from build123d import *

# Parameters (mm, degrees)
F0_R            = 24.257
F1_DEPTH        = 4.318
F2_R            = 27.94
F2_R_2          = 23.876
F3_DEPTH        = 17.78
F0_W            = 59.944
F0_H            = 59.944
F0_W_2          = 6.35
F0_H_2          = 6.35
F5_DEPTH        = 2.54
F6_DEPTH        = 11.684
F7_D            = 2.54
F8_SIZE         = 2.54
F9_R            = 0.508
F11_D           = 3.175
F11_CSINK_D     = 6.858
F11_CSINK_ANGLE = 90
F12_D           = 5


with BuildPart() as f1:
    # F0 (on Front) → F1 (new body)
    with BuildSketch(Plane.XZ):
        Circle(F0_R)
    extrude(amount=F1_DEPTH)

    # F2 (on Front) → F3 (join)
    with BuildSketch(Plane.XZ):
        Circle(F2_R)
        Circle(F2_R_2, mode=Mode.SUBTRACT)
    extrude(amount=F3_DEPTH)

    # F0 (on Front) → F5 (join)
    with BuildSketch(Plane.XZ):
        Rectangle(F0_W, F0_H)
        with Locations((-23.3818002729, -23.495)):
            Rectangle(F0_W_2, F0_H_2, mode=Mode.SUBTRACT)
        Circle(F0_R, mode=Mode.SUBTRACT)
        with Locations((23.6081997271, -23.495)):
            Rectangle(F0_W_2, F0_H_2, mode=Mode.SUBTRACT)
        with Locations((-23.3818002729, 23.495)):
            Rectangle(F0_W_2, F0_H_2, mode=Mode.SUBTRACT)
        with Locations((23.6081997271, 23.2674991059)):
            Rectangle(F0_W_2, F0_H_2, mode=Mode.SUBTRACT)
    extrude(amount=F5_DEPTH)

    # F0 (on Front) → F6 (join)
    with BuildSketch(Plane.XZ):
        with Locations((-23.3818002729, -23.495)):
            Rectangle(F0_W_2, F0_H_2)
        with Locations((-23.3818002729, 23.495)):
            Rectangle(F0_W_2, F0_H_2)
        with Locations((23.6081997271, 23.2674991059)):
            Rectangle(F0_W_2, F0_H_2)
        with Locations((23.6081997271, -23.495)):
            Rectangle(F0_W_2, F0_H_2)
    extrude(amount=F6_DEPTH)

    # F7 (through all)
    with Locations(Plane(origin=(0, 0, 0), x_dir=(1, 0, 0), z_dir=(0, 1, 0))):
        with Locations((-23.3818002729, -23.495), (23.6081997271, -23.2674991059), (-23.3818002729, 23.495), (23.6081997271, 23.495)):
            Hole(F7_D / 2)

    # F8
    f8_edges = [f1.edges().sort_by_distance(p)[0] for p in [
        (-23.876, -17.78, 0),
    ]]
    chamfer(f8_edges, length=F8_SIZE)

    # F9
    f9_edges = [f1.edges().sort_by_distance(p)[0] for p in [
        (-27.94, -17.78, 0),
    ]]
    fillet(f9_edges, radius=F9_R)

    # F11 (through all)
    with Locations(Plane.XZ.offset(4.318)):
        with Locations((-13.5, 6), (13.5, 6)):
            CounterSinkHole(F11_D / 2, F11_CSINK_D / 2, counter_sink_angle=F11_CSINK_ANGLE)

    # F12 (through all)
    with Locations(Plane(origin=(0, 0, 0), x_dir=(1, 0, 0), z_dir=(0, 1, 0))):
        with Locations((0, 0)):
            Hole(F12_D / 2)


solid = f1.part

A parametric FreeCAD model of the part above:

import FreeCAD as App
import Part
import Sketcher
Q = App.Units.Quantity


def edges_at(feature, points):
    """Names of the edges that pass closest to the given points."""
    edges = feature.Shape.Edges
    near = lambda p: min(range(len(edges)), key=lambda i: edges[i].distToShape(Part.Vertex(*p))[0])
    return sorted({f"Edge{near(p) + 1}" for p in points})


def add_polygon(sketch, points):
    """Adds a closed chain of lines whose ends are joined by coincident constraints."""
    first, n = sketch.GeometryCount, len(points)
    for a, b in zip(points, points[1:] + points[:1]):
        sketch.addGeometry(Part.LineSegment(App.Vector(*a, 0), App.Vector(*b, 0)), False)
    for i in range(n):
        sketch.addConstraint(Sketcher.Constraint("Coincident", first + i, 2, first + (i + 1) % n, 1))

doc = App.newDocument("Part")
body = doc.addObject("PartDesign::Body", "Body")

# Sketch on XZ plane
sketch1 = doc.addObject("Sketcher::SketchObject", "Sketch")
body.addObject(sketch1)
sketch1.AttachmentSupport = (doc.XZ_Plane, [""])
sketch1.MapMode = "FlatFace"
sketch1.addGeometry(Part.Circle(App.Vector(0, 0, 0), App.Vector(0, 0, 1), 24), False)
sketch1.addConstraint([
    Sketcher.Constraint("Coincident", 0, 3, -1, 1),
    Sketcher.Constraint("Diameter", 0, Q("1.91 in")),
])
pad1 = doc.addObject("PartDesign::Pad", "Pad")
body.addObject(pad1)
pad1.Profile = sketch1
pad1.Length = Q("0.17 in")

# Sketch on XZ plane
sketch2 = doc.addObject("Sketcher::SketchObject", "Sketch001")
body.addObject(sketch2)
sketch2.AttachmentSupport = (doc.XZ_Plane, [""])
sketch2.MapMode = "FlatFace"
sketch2.addGeometry([
    Part.Circle(App.Vector(0, 0, 0), App.Vector(0, 0, 1), 28),
    Part.Circle(App.Vector(0, 0, 0), App.Vector(0, 0, 1), 24),
], False)
sketch2.addConstraint([
    Sketcher.Constraint("Coincident", 0, 3, -1, 1),
    Sketcher.Constraint("Coincident", 1, 3, -1, 1),
    Sketcher.Constraint("Diameter", 0, Q("2.2 in")),
    Sketcher.Constraint("Diameter", 1, Q("1.88 in")),
])
pad2 = doc.addObject("PartDesign::Pad", "Pad001")
body.addObject(pad2)
pad2.Profile = sketch2
pad2.Length = Q("0.7 in")

# Sketch on XZ plane
sketch3 = doc.addObject("Sketcher::SketchObject", "Sketch002")
body.addObject(sketch3)
sketch3.AttachmentSupport = (doc.XZ_Plane, [""])
sketch3.MapMode = "FlatFace"
add_polygon(sketch3, [(-30, 30), (-30, -30), (30, -30), (30, 30)])  # lines 0-3
add_polygon(sketch3, [(-20, -27), (-27, -27), (-27, -20), (-20, -20)])  # lines 4-7
sketch3.addGeometry(Part.Circle(App.Vector(0, 0, 0), App.Vector(0, 0, 1), 24), False)  # 8
add_polygon(sketch3, [(27, -27), (20, -27), (20, -20), (27, -20)])  # lines 9-12
add_polygon(sketch3, [(-20, 20), (-27, 20), (-27, 27), (-20, 27)])  # lines 13-16
add_polygon(sketch3, [(27, 20), (20, 20), (20, 26), (27, 26)])  # lines 17-20
sketch3.addConstraint([
    Sketcher.Constraint("Vertical", 0),
    Sketcher.Constraint("Horizontal", 1),
    Sketcher.Constraint("Vertical", 2),
    Sketcher.Constraint("Horizontal", 3),
    Sketcher.Constraint("Horizontal", 4),
    Sketcher.Constraint("Vertical", 5),
    Sketcher.Constraint("Horizontal", 6),
    Sketcher.Constraint("Vertical", 7),
    Sketcher.Constraint("Horizontal", 9),
    Sketcher.Constraint("Vertical", 10),
    Sketcher.Constraint("Horizontal", 11),
    Sketcher.Constraint("Vertical", 12),
    Sketcher.Constraint("Horizontal", 13),
    Sketcher.Constraint("Vertical", 14),
    Sketcher.Constraint("Horizontal", 15),
    Sketcher.Constraint("Vertical", 16),
    Sketcher.Constraint("Horizontal", 17),
    Sketcher.Constraint("Vertical", 18),
    Sketcher.Constraint("Horizontal", 19),
    Sketcher.Constraint("Vertical", 20),
    Sketcher.Constraint("Coincident", 8, 3, -1, 1),
    Sketcher.Constraint("Symmetric", 0, 2, 2, 2, -1, 1),
    Sketcher.Constraint("Symmetric", 5, 2, 13, 2, -1),
    Sketcher.Constraint("Symmetric", 7, 2, 15, 2, -1),
    Sketcher.Constraint("Horizontal", 7, 2, 9, 2),
    Sketcher.Constraint("Horizontal", 6, 2, 10, 2),
    Sketcher.Constraint("Vertical", 10, 2, 17, 2),
    Sketcher.Constraint("Vertical", 12, 2, 19, 2),
    Sketcher.Constraint("Equal", 6, 9),
    Sketcher.Constraint("Equal", 3, 0),
    Sketcher.Constraint("Equal", 19, 5),
    Sketcher.Constraint("Equal", 16, 18),
    Sketcher.Constraint("Diameter", 8, Q("1.91 in")),
    Sketcher.Constraint("DistanceX", 1, 1, 1, 2, Q("2.36 in")),
    Sketcher.Constraint("DistanceX", 4, 2, 4, 1, Q("0.25 in")),
    Sketcher.Constraint("DistanceY", 5, 2, -1, 1, Q("0.8 in")),
    Sketcher.Constraint("DistanceX", 7, 2, 9, 2, Q("1.6 in")),
    Sketcher.Constraint("DistanceX", 4, 2, -1, 1, Q("26.5568 mm")),
    Sketcher.Constraint("DistanceY", -1, 1, 17, 2, Q("20.092499 mm")),
])
pad3 = doc.addObject("PartDesign::Pad", "Pad002")
body.addObject(pad3)
pad3.Profile = sketch3
pad3.Length = Q("0.1 in")

# Sketch on XZ plane
sketch4 = doc.addObject("Sketcher::SketchObject", "Sketch003")
body.addObject(sketch4)
sketch4.AttachmentSupport = (doc.XZ_Plane, [""])
sketch4.MapMode = "FlatFace"
add_polygon(sketch4, [(-27, -20), (-27, -27), (-20, -27), (-20, -20)])  # lines 0-3
add_polygon(sketch4, [(-27, 27), (-27, 20), (-20, 20), (-20, 27)])  # lines 4-7
add_polygon(sketch4, [(20, 26), (20, 20), (27, 20), (27, 26)])  # lines 8-11
add_polygon(sketch4, [(20, -20), (20, -27), (27, -27), (27, -20)])  # lines 12-15
sketch4.addConstraint([
    Sketcher.Constraint("Vertical", 0),
    Sketcher.Constraint("Horizontal", 1),
    Sketcher.Constraint("Vertical", 2),
    Sketcher.Constraint("Horizontal", 3),
    Sketcher.Constraint("Vertical", 4),
    Sketcher.Constraint("Horizontal", 5),
    Sketcher.Constraint("Vertical", 6),
    Sketcher.Constraint("Horizontal", 7),
    Sketcher.Constraint("Vertical", 8),
    Sketcher.Constraint("Horizontal", 9),
    Sketcher.Constraint("Vertical", 10),
    Sketcher.Constraint("Horizontal", 11),
    Sketcher.Constraint("Vertical", 12),
    Sketcher.Constraint("Horizontal", 13),
    Sketcher.Constraint("Vertical", 14),
    Sketcher.Constraint("Horizontal", 15),
    Sketcher.Constraint("Symmetric", 3, 2, 4, 2, -1),
    Sketcher.Constraint("Symmetric", 1, 2, 6, 2, -1),
    Sketcher.Constraint("Horizontal", 1, 2, 12, 2),
    Sketcher.Constraint("Horizontal", 3, 2, 14, 2),
    Sketcher.Constraint("Vertical", 11, 2, 12, 2),
    Sketcher.Constraint("Vertical", 10, 2, 13, 2),
    Sketcher.Constraint("Equal", 7, 9),
    Sketcher.Constraint("Equal", 15, 0),
    Sketcher.Constraint("Equal", 6, 8),
    Sketcher.Constraint("DistanceX", 1, 1, 1, 2, Q("0.25 in")),
    Sketcher.Constraint("DistanceY", 2, 2, -1, 1, Q("0.8 in")),
    Sketcher.Constraint("DistanceX", 5, 2, 8, 2, Q("1.6 in")),
    Sketcher.Constraint("DistanceX", 0, 2, -1, 1, Q("26.5568 mm")),
    Sketcher.Constraint("DistanceY", -1, 1, 8, 2, Q("20.092499 mm")),
])
pad4 = doc.addObject("PartDesign::Pad", "Pad003")
body.addObject(pad4)
pad4.Profile = sketch4
pad4.Length = Q("0.46 in")

# Sketch on XZ plane
sketch5 = doc.addObject("Sketcher::SketchObject", "Sketch004")
body.addObject(sketch5)
sketch5.AttachmentSupport = (doc.XZ_Plane, [""])
sketch5.MapMode = "FlatFace"
sketch5.addGeometry([
    Part.Circle(App.Vector(-23.4, 23.5, 0), App.Vector(0, 0, 1), 1.3),
    Part.Circle(App.Vector(23.6, 23.3, 0), App.Vector(0, 0, 1), 1.3),
    Part.Circle(App.Vector(-23.4, -23.5, 0), App.Vector(0, 0, 1), 1.3),
    Part.Circle(App.Vector(23.6, -23.5, 0), App.Vector(0, 0, 1), 1.3),
], False)
sketch5.addConstraint([
    Sketcher.Constraint("Equal", 0, 1),
    Sketcher.Constraint("Equal", 1, 2),
    Sketcher.Constraint("Equal", 2, 3),
    Sketcher.Constraint("Symmetric", 0, 3, 2, 3, -1),
    Sketcher.Constraint("Horizontal", 2, 3, 3, 3),
    Sketcher.Constraint("Vertical", 1, 3, 3, 3),
    Sketcher.Constraint("Diameter", 0, Q("0.1 in")),
    Sketcher.Constraint("DistanceX", 0, 3, 1, 3, Q("1.85 in")),
    Sketcher.Constraint("DistanceY", 2, 3, 0, 3, Q("1.85 in")),
    Sketcher.Constraint("DistanceX", 0, 3, -1, 1, Q("23.3818 mm")),
    Sketcher.Constraint("DistanceY", -1, 1, 1, 3, Q("23.267499 mm")),
])
doc.recompute()
hole = doc.addObject("PartDesign::Hole", "Hole")
body.addObject(hole)
hole.Profile = sketch5
hole.ThreadType = "None"
hole.Diameter = Q("0.1 in")
hole.DepthType = "ThroughAll"
hole.Reversed = True
doc.recompute()

chamfer = doc.addObject("PartDesign::Chamfer", "Chamfer")
body.addObject(chamfer)
chamfer.Base = (hole, edges_at(hole, [(-23.876, -17.78, 0)]))
chamfer.Size = Q("0.1 in")
doc.recompute()

fillet = doc.addObject("PartDesign::Fillet", "Fillet")
body.addObject(fillet)
fillet.Base = (chamfer, edges_at(chamfer, [(-27.94, -17.78, 0)]))
fillet.Radius = Q("0.02 in")

# Sketch on XZ plane
sketch6 = doc.addObject("Sketcher::SketchObject", "Sketch005")
body.addObject(sketch6)
sketch6.AttachmentSupport = (doc.XZ_Plane, [""])
sketch6.MapMode = "FlatFace"
sketch6.AttachmentOffset = App.Placement(App.Vector(0, 0, 0.17 * 25.4), App.Rotation())
sketch6.addGeometry([
    Part.Circle(App.Vector(-13.5, 6, 0), App.Vector(0, 0, 1), 1.6),
    Part.Circle(App.Vector(13.5, 6, 0), App.Vector(0, 0, 1), 1.6),
], False)
sketch6.addConstraint([
    Sketcher.Constraint("Equal", 0, 1),
    Sketcher.Constraint("Symmetric", 0, 3, 1, 3, -2),
    Sketcher.Constraint("Diameter", 0, Q("0.125 in")),
    Sketcher.Constraint("DistanceX", 0, 3, -1, 1, Q("13.5 mm")),
    Sketcher.Constraint("DistanceY", -1, 1, 0, 3, Q("6 mm")),
])
doc.recompute()
hole2 = doc.addObject("PartDesign::Hole", "Hole001")
body.addObject(hole2)
hole2.Profile = sketch6
hole2.ThreadType = "None"
hole2.Diameter = Q("0.125 in")
hole2.DepthType = "ThroughAll"
hole2.HoleCutType = "Countersink"
hole2.HoleCutDiameter = Q("0.27 in")
hole2.HoleCutCountersinkAngle = 90

# Sketch on XZ plane
sketch7 = doc.addObject("Sketcher::SketchObject", "Sketch006")
body.addObject(sketch7)
sketch7.AttachmentSupport = (doc.XZ_Plane, [""])
sketch7.MapMode = "FlatFace"
sketch7.addGeometry(Part.Circle(App.Vector(0, 0, 0), App.Vector(0, 0, 1), 2.5), False)
sketch7.addConstraint([
    Sketcher.Constraint("Coincident", 0, 3, -1, 1),
    Sketcher.Constraint("Diameter", 0, Q("5 mm")),
])
doc.recompute()
hole3 = doc.addObject("PartDesign::Hole", "Hole002")
body.addObject(hole3)
hole3.Profile = sketch7
hole3.ThreadType = "None"
hole3.Diameter = 5
hole3.DepthType = "ThroughAll"
hole3.Reversed = True

doc.recompute()
